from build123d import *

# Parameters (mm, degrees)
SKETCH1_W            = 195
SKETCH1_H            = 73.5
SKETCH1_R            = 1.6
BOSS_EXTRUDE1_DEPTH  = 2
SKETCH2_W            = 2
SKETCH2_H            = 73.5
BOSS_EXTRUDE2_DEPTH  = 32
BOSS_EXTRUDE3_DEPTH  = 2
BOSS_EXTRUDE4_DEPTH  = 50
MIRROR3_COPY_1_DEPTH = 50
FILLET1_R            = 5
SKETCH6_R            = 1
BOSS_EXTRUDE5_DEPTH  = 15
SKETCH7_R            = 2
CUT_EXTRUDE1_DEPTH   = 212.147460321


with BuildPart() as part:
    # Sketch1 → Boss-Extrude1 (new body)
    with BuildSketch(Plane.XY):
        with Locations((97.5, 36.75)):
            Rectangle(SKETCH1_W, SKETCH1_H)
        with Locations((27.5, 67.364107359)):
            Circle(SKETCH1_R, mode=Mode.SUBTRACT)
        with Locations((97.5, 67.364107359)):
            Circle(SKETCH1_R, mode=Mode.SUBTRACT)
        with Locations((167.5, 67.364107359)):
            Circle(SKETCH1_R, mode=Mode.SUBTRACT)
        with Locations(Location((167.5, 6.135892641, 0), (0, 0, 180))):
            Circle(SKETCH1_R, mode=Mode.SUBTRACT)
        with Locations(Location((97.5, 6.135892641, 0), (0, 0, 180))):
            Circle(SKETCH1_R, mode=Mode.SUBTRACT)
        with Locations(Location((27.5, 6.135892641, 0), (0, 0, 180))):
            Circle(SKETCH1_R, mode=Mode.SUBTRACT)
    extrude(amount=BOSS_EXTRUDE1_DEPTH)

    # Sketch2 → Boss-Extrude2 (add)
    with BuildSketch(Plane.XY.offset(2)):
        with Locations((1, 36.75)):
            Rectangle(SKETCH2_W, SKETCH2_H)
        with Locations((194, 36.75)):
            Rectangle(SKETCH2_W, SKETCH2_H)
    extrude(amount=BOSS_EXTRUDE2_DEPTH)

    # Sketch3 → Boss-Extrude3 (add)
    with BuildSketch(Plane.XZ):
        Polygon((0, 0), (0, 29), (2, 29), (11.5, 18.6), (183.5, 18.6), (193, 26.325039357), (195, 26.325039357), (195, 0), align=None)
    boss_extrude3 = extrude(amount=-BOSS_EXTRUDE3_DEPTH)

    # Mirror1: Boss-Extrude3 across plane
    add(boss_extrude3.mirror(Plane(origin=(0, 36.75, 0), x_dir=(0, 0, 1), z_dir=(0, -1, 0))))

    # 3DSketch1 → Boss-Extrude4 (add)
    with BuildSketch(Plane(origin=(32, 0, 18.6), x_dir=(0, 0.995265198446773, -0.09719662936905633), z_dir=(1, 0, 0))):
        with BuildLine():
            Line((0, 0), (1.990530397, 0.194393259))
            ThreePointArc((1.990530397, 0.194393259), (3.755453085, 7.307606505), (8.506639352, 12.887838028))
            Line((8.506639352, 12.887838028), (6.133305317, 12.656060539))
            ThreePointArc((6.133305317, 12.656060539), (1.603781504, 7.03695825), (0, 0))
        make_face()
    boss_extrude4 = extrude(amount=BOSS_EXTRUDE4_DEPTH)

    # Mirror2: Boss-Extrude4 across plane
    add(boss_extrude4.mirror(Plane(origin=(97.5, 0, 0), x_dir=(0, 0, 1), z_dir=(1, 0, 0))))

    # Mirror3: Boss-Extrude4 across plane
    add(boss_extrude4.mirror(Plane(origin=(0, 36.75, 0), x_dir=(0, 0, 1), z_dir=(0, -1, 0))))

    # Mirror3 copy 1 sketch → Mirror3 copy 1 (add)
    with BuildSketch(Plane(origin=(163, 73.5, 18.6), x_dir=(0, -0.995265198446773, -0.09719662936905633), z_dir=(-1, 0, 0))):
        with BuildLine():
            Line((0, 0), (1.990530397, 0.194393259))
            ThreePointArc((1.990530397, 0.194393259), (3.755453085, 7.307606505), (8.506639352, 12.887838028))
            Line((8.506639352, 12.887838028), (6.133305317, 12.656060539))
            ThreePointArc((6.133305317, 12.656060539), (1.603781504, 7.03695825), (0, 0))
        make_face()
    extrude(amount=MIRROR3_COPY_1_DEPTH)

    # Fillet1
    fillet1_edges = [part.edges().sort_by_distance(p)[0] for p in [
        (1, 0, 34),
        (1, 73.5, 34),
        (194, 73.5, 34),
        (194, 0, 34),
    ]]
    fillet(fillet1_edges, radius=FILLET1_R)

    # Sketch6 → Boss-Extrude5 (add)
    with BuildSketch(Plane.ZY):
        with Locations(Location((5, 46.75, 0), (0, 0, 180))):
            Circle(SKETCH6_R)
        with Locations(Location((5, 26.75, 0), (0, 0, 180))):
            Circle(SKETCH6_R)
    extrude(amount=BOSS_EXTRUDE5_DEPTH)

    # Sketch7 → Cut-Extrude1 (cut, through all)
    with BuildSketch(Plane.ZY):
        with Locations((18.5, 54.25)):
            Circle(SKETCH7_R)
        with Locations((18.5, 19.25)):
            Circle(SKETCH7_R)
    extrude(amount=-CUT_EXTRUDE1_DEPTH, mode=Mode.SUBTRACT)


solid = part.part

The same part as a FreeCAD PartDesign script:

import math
import FreeCAD as App
import Part
import Sketcher
from FreeCAD import Vector


def edges_at(feature, points):
    """Names of the edges that pass closest to the given points."""
    edges = feature.Shape.Edges
    near = lambda p: min(range(len(edges)), key=lambda i: edges[i].distToShape(Part.Vertex(*p))[0])
    return sorted({f"Edge{near(p) + 1}" for p in points})

doc = App.newDocument("Part")
params = doc.addObject("Spreadsheet::Sheet", "Params")
for row, (alias, value) in enumerate([
    ("sketch1_diameter", "3.2 mm"),
    ("sketch1_width", "195 mm"),
    ("sketch1_height", "73.5 mm"),
    ("pad1_length", "2 mm"),
    ("sketch2_width", "2 mm"),
    ("sketch2_height", "73.5 mm"),
    ("pad2_length", "32 mm"),
    ("sketch3_width", "195 mm"),
    ("sketch3_width2", "2 mm"),
    ("sketch3_width3", "172 mm"),
    ("sketch3_height", "29 mm"),
    ("pad3_length", "2 mm"),
    ("sketch4_width", "2 mm"),
    ("pad4_length", "50 mm"),
    ("sketch5_width", "2 mm"),
    ("pad5_length", "50 mm"),
    ("fillet_radius", "5 mm"),
    ("sketch6_diameter", "2 mm"),
    ("pad6_length", "15 mm"),
    ("sketch7_diameter", "4 mm"),
], start=1):
    params.set(f"A{row}", alias)
    params.set(f"B{row}", "=" + value)
    params.setAlias(f"B{row}", alias)

body = doc.addObject("PartDesign::Body", "Body")

# Sketch on XY plane
sketch1 = body.newObject("Sketcher::SketchObject", "Sketch")
sketch1.AttachmentSupport = (doc.getObject("XY_Plane"), [""])
sketch1.MapMode = "FlatFace"
sketch1.addGeometry(Part.LineSegment(Vector(0, 73.5, 0), Vector(0, 0, 0)), False)
sketch1.addGeometry(Part.LineSegment(Vector(0, 0, 0), Vector(195, 0, 0)), False)
sketch1.addGeometry(Part.LineSegment(Vector(195, 0, 0), Vector(195, 73.5, 0)), False)
sketch1.addGeometry(Part.LineSegment(Vector(195, 73.5, 0), Vector(0, 73.5, 0)), False)
sketch1.addGeometry(Part.Circle(Vector(27.5, 6.1, 0), Vector(0, 0, 1), 1.6), False)
sketch1.addGeometry(Part.Circle(Vector(97.5, 6.1, 0), Vector(0, 0, 1), 1.6), False)
sketch1.addGeometry(Part.Circle(Vector(167.5, 6.1, 0), Vector(0, 0, 1), 1.6), False)
sketch1.addGeometry(Part.Circle(Vector(27.5, 67.4, 0), Vector(0, 0, 1), 1.6), False)
sketch1.addGeometry(Part.Circle(Vector(97.5, 67.4, 0), Vector(0, 0, 1), 1.6), False)
sketch1.addGeometry(Part.Circle(Vector(167.5, 67.4, 0), Vector(0, 0, 1), 1.6), False)
sketch1.addConstraint(Sketcher.Constraint("Coincident", 0, 2, 1, 1))
sketch1.addConstraint(Sketcher.Constraint("Coincident", 1, 2, 2, 1))
sketch1.addConstraint(Sketcher.Constraint("Coincident", 2, 2, 3, 1))
sketch1.addConstraint(Sketcher.Constraint("Coincident", 3, 2, 0, 1))
sketch1.addConstraint(Sketcher.Constraint("Vertical", 0))
sketch1.addConstraint(Sketcher.Constraint("Horizontal", 1))
sketch1.addConstraint(Sketcher.Constraint("Vertical", 2))
sketch1.addConstraint(Sketcher.Constraint("Horizontal", 3))
sketch1.addConstraint(Sketcher.Constraint("Coincident", 0, 2, -1, 1))
sketch1.addConstraint(Sketcher.Constraint("Equal", 4, 5))
sketch1.addConstraint(Sketcher.Constraint("Equal", 5, 6))
sketch1.addConstraint(Sketcher.Constraint("Equal", 6, 7))
sketch1.addConstraint(Sketcher.Constraint("Equal", 7, 8))
sketch1.addConstraint(Sketcher.Constraint("Equal", 8, 9))
sketch1.addConstraint(Sketcher.Constraint("Horizontal", 4, 3, 5, 3))
sketch1.addConstraint(Sketcher.Constraint("Horizontal", 5, 3, 6, 3))
sketch1.addConstraint(Sketcher.Constraint("Horizontal", 7, 3, 8, 3))
sketch1.addConstraint(Sketcher.Constraint("Horizontal", 8, 3, 9, 3))
sketch1.addConstraint(Sketcher.Constraint("Vertical", 4, 3, 7, 3))
sketch1.addConstraint(Sketcher.Constraint("Vertical", 5, 3, 8, 3))
sketch1.addConstraint(Sketcher.Constraint("Vertical", 6, 3, 9, 3))
sketch1.addConstraint(Sketcher.Constraint("Diameter", 4, 3.2))
sketch1.addConstraint(Sketcher.Constraint("DistanceX", 1, 1, 1, 2, 195.0))
sketch1.addConstraint(Sketcher.Constraint("DistanceY", 0, 2, 0, 1, 73.5))
sketch1.addConstraint(Sketcher.Constraint("DistanceX", 4, 3, 5, 3, 70.0))
sketch1.addConstraint(Sketcher.Constraint("DistanceX", 5, 3, 6, 3, 70.0))
sketch1.addConstraint(Sketcher.Constraint("DistanceX", -1, 1, 4, 3, 27.5))
sketch1.addConstraint(Sketcher.Constraint("DistanceY", -1, 1, 4, 3, 6.135893))
sketch1.addConstraint(Sketcher.Constraint("DistanceY", -1, 1, 7, 3, 67.364107))
sketch1.setExpression("Constraints[21]", "Params.sketch1_diameter")
sketch1.setExpression("Constraints[22]", "Params.sketch1_width")
sketch1.setExpression("Constraints[23]", "Params.sketch1_height")
pad1 = body.newObject("PartDesign::Pad", "Pad")
pad1.Profile = sketch1
pad1.setExpression("Length", "Params.pad1_length")

# Sketch on XY plane
sketch2 = body.newObject("Sketcher::SketchObject", "Sketch001")
sketch2.AttachmentSupport = (doc.getObject("XY_Plane"), [""])
sketch2.MapMode = "FlatFace"
sketch2.AttachmentOffset = App.Placement(Vector(0, 0, 2), App.Rotation())
sketch2.addGeometry(Part.LineSegment(Vector(0, 73.5, 0), Vector(0, 0, 0)), False)
sketch2.addGeometry(Part.LineSegment(Vector(0, 0, 0), Vector(2, 0, 0)), False)
sketch2.addGeometry(Part.LineSegment(Vector(2, 0, 0), Vector(2, 73.5, 0)), False)
sketch2.addGeometry(Part.LineSegment(Vector(2, 73.5, 0), Vector(0, 73.5, 0)), False)
sketch2.addGeometry(Part.LineSegment(Vector(193, 73.5, 0), Vector(193, 0, 0)), False)
sketch2.addGeometry(Part.LineSegment(Vector(193, 0, 0), Vector(195, 0, 0)), False)
sketch2.addGeometry(Part.LineSegment(Vector(195, 0, 0), Vector(195, 73.5, 0)), False)
sketch2.addGeometry(Part.LineSegment(Vector(195, 73.5, 0), Vector(193, 73.5, 0)), False)
sketch2.addConstraint(Sketcher.Constraint("Coincident", 0, 2, 1, 1))
sketch2.addConstraint(Sketcher.Constraint("Coincident", 1, 2, 2, 1))
sketch2.addConstraint(Sketcher.Constraint("Coincident", 2, 2, 3, 1))
sketch2.addConstraint(Sketcher.Constraint("Coincident", 3, 2, 0, 1))
sketch2.addConstraint(Sketcher.Constraint("Coincident", 4, 2, 5, 1))
sketch2.addConstraint(Sketcher.Constraint("Coincident", 5, 2, 6, 1))
sketch2.addConstraint(Sketcher.Constraint("Coincident", 6, 2, 7, 1))
sketch2.addConstraint(Sketcher.Constraint("Coincident", 7, 2, 4, 1))
sketch2.addConstraint(Sketcher.Constraint("Vertical", 0))
sketch2.addConstraint(Sketcher.Constraint("Horizontal", 1))
sketch2.addConstraint(Sketcher.Constraint("Vertical", 2))
sketch2.addConstraint(Sketcher.Constraint("Horizontal", 3))
sketch2.addConstraint(Sketcher.Constraint("Vertical", 4))
sketch2.addConstraint(Sketcher.Constraint("Horizontal", 5))
sketch2.addConstraint(Sketcher.Constraint("Vertical", 6))
sketch2.addConstraint(Sketcher.Constraint("Horizontal", 7))
sketch2.addConstraint(Sketcher.Constraint("Coincident", 0, 2, -1, 1))
sketch2.addConstraint(Sketcher.Constraint("PointOnObject", 4, 2, -1))
sketch2.addConstraint(Sketcher.Constraint("Horizontal", 3, 2, 6, 2))
sketch2.addConstraint(Sketcher.Constraint("Equal", 3, 5))
sketch2.addConstraint(Sketcher.Constraint("DistanceX", 1, 1, 1, 2, 2.0))
sketch2.addConstraint(Sketcher.Constraint("DistanceY", 0, 2, 0, 1, 73.5))
sketch2.addConstraint(Sketcher.Constraint("DistanceX", -1, 1, 4, 2, 193.0))
sketch2.setExpression("Constraints[20]", "Params.sketch2_width")
sketch2.setExpression("Constraints[21]", "Params.sketch2_height")
pad2 = body.newObject("PartDesign::Pad", "Pad001")
pad2.Profile = sketch2
pad2.setExpression("Length", "Params.pad2_length")

# Sketch on XZ plane
sketch3 = body.newObject("Sketcher::SketchObject", "Sketch002")
sketch3.AttachmentSupport = (doc.getObject("XZ_Plane"), [""])
sketch3.MapMode = "FlatFace"
sketch3.addGeometry(Part.LineSegment(Vector(0, 29, 0), Vector(0, 0, 0)), False)
sketch3.addGeometry(Part.LineSegment(Vector(0, 0, 0), Vector(195, 0, 0)), False)
sketch3.addGeometry(Part.LineSegment(Vector(195, 0, 0), Vector(195, 26.3, 0)), False)
sketch3.addGeometry(Part.LineSegment(Vector(195, 26.3, 0), Vector(193, 26.3, 0)), False)
sketch3.addGeometry(Part.LineSegment(Vector(193, 26.3, 0), Vector(183.5, 18.6, 0)), False)
sketch3.addGeometry(Part.LineSegment(Vector(183.5, 18.6, 0), Vector(11.5, 18.6, 0)), False)
sketch3.addGeometry(Part.LineSegment(Vector(11.5, 18.6, 0), Vector(2, 29, 0)), False)
sketch3.addGeometry(Part.LineSegment(Vector(2, 29, 0), Vector(0, 29, 0)), False)
sketch3.addConstraint(Sketcher.Constraint("Coincident", 0, 2, 1, 1))
sketch3.addConstraint(Sketcher.Constraint("Coincident", 1, 2, 2, 1))
sketch3.addConstraint(Sketcher.Constraint("Coincident", 2, 2, 3, 1))
sketch3.addConstraint(Sketcher.Constraint("Coincident", 3, 2, 4, 1))
sketch3.addConstraint(Sketcher.Constraint("Coincident", 4, 2, 5, 1))
sketch3.addConstraint(Sketcher.Constraint("Coincident", 5, 2, 6, 1))
sketch3.addConstraint(Sketcher.Constraint("Coincident", 6, 2, 7, 1))
sketch3.addConstraint(Sketcher.Constraint("Coincident", 7, 2, 0, 1))
sketch3.addConstraint(Sketcher.Constraint("Vertical", 0))
sketch3.addConstraint(Sketcher.Constraint("Horizontal", 1))
sketch3.addConstraint(Sketcher.Constraint("Vertical", 2))
sketch3.addConstraint(Sketcher.Constraint("Horizontal", 3))
sketch3.addConstraint(Sketcher.Constraint("Horizontal", 5))
sketch3.addConstraint(Sketcher.Constraint("Horizontal", 7))
sketch3.addConstraint(Sketcher.Constraint("Coincident", 0, 2, -1, 1))
sketch3.addConstraint(Sketcher.Constraint("Equal", 3, 7))
sketch3.addConstraint(Sketcher.Constraint("DistanceX", 1, 1, 1, 2, 195.0))
sketch3.addConstraint(Sketcher.Constraint("DistanceX", 3, 2, 3, 1, 2.0))
sketch3.addConstraint(Sketcher.Constraint("DistanceX", 5, 2, 5, 1, 172.0))
sketch3.addConstraint(Sketcher.Constraint("DistanceY", 0, 2, 0, 1, 29.0))
sketch3.addConstraint(Sketcher.Constraint("DistanceX", -1, 1, 4, 2, 183.5))
sketch3.addConstraint(Sketcher.Constraint("DistanceY", -1, 1, 4, 2, 18.6))
sketch3.addConstraint(Sketcher.Constraint("DistanceY", 2, 1, 2, 2, 26.325039))
sketch3.setExpression("Constraints[16]", "Params.sketch3_width")
sketch3.setExpression("Constraints[17]", "Params.sketch3_width2")
sketch3.setExpression("Constraints[18]", "Params.sketch3_width3")
sketch3.setExpression("Constraints[19]", "Params.sketch3_height")
pad3 = body.newObject("PartDesign::Pad", "Pad002")
pad3.Profile = sketch3
pad3.setExpression("Length", "Params.pad3_length")
pad3.Reversed = True
doc.recompute()

datumplane = body.newObject("PartDesign::Plane", "DatumPlane")
datumplane.AttachmentSupport = (doc.getObject("XZ_Plane"), [""])
datumplane.MapMode = "FlatFace"
datumplane.AttachmentOffset = App.Placement(Vector(0, 0, -36.75), App.Rotation())
mirrored = body.newObject("PartDesign::Mirrored", "Mirrored")
mirrored.Originals = [pad3]
mirrored.MirrorPlane = (datumplane, [""])
body.Tip = mirrored

# Sketch on YZ plane
sketch4 = body.newObject("Sketcher::SketchObject", "Sketch003")
sketch4.AttachmentSupport = (doc.getObject("YZ_Plane"), [""])
sketch4.MapMode = "FlatFace"
sketch4.AttachmentOffset = App.Placement(Vector(0, 0, 32), App.Rotation())
sketch4.addGeometry(Part.LineSegment(Vector(0, 18.6, 0), Vector(2, 18.6, 0)), False)
sketch4.addGeometry(Part.ArcOfCircle(Part.Circle(Vector(17.9, 16.9, 0), Vector(0, 0, 1), 16), math.radians(121), math.radians(174)), False)
sketch4.addGeometry(Part.LineSegment(Vector(9.7, 30.6, 0), Vector(7.3, 30.6, 0)), False)
sketch4.addGeometry(Part.ArcOfCircle(Part.Circle(Vector(16, 17.1, 0), Vector(0, 0, 1), 16), math.radians(123), math.radians(175)), False)
sketch4.addConstraint(Sketcher.Constraint("Coincident", 0, 2, 1, 2))
sketch4.addConstraint(Sketcher.Constraint("Coincident", 1, 1, 2, 1))
sketch4.addConstraint(Sketcher.Constraint("Coincident", 2, 2, 3, 1))
sketch4.addConstraint(Sketcher.Constraint("Coincident", 3, 2, 0, 1))
sketch4.addConstraint(Sketcher.Constraint("Horizontal", 0))
sketch4.addConstraint(Sketcher.Constraint("Horizontal", 2))
sketch4.addConstraint(Sketcher.Constraint("PointOnObject", 3, 2, -2))
sketch4.addConstraint(Sketcher.Constraint("DistanceX", 0, 1, 0, 2, 2.0))
sketch4.addConstraint(Sketcher.Constraint("DistanceY", 0, 2, 1, 1, 12.0))
sketch4.addConstraint(Sketcher.Constraint("DistanceY", -1, 1, 0, 2, 18.6))
sketch4.addConstraint(Sketcher.Constraint("Radius", 1, 16.001393))
sketch4.addConstraint(Sketcher.Constraint("Radius", 3, 16.022066))
sketch4.addConstraint(Sketcher.Constraint("DistanceX", 2, 2, 2, 1, 2.384625))
sketch4.addConstraint(Sketcher.Constraint("DistanceX", -1, 1, 1, 3, 17.90556))
sketch4.setExpression("Constraints[7]", "Params.sketch4_width")
pad4 = body.newObject("PartDesign::Pad", "Pad003")
pad4.Profile = sketch4
pad4.setExpression("Length", "Params.pad4_length")
doc.recompute()

datumplane2 = body.newObject("PartDesign::Plane", "DatumPlane001")
datumplane2.AttachmentSupport = (doc.getObject("YZ_Plane"), [""])
datumplane2.MapMode = "FlatFace"
datumplane2.AttachmentOffset = App.Placement(Vector(0, 0, 97.5), App.Rotation())
mirrored2 = body.newObject("PartDesign::Mirrored", "Mirrored001")
mirrored2.Originals = [pad4]
mirrored2.MirrorPlane = (datumplane2, [""])
body.Tip = mirrored2
doc.recompute()

datumplane3 = body.newObject("PartDesign::Plane", "DatumPlane002")
datumplane3.AttachmentSupport = (doc.getObject("XZ_Plane"), [""])
datumplane3.MapMode = "FlatFace"
datumplane3.AttachmentOffset = App.Placement(Vector(0, 0, -36.75), App.Rotation())
mirrored3 = body.newObject("PartDesign::Mirrored", "Mirrored002")
mirrored3.Originals = [pad4]
mirrored3.MirrorPlane = (datumplane3, [""])
body.Tip = mirrored3

# Sketch on YZ plane
sketch5 = body.newObject("Sketcher::SketchObject", "Sketch004")
sketch5.AttachmentSupport = (doc.getObject("YZ_Plane"), [""])
sketch5.MapMode = "FlatFace"
sketch5.AttachmentOffset = App.Placement(Vector(0, 0, 163), App.Rotation())
sketch5.addGeometry(Part.LineSegment(Vector(73.5, 18.6, 0), Vector(71.5, 18.6, 0)), False)
sketch5.addGeometry(Part.ArcOfCircle(Part.Circle(Vector(55.6, 16.9, 0), Vector(0, 0, 1), 16), math.radians(6), math.radians(59)), False)
sketch5.addGeometry(Part.LineSegment(Vector(63.8, 30.6, 0), Vector(66.2, 30.6, 0)), False)
sketch5.addGeometry(Part.ArcOfCircle(Part.Circle(Vector(57.5, 17.1, 0), Vector(0, 0, 1), 16), math.radians(5), math.radians(57)), False)
sketch5.addConstraint(Sketcher.Constraint("Coincident", 0, 2, 1, 1))
sketch5.addConstraint(Sketcher.Constraint("Coincident", 1, 2, 2, 1))
sketch5.addConstraint(Sketcher.Constraint("Coincident", 2, 2, 3, 2))
sketch5.addConstraint(Sketcher.Constraint("Coincident", 3, 1, 0, 1))
sketch5.addConstraint(Sketcher.Constraint("Horizontal", 0))
sketch5.addConstraint(Sketcher.Constraint("Horizontal", 2))
sketch5.addConstraint(Sketcher.Constraint("DistanceX", 0, 2, 0, 1, 2.0))
sketch5.addConstraint(Sketcher.Constraint("DistanceY", 0, 2, 1, 2, 12.0))
sketch5.addConstraint(Sketcher.Constraint("DistanceX", -1, 1, 0, 2, 71.5))
sketch5.addConstraint(Sketcher.Constraint("DistanceY", -1, 1, 0, 2, 18.6))
sketch5.addConstraint(Sketcher.Constraint("Radius", 1, 16.001393))
sketch5.addConstraint(Sketcher.Constraint("Radius", 3, 16.022066))
sketch5.addConstraint(Sketcher.Constraint("DistanceX", 2, 1, 2, 2, 2.384625))
sketch5.addConstraint(Sketcher.Constraint("DistanceX", -1, 1, 1, 3, 55.59444))
sketch5.setExpression("Constraints[6]", "Params.sketch5_width")
pad5 = body.newObject("PartDesign::Pad", "Pad004")
pad5.Profile = sketch5
pad5.setExpression("Length", "Params.pad5_length")
pad5.Reversed = True
doc.recompute()

fillet = body.newObject("PartDesign::Fillet", "Fillet")
fillet.Base = (pad5, edges_at(pad5, [
    (1, 0, 34),
    (1, 73.5, 34),
    (194, 73.5, 34),
    (194, 0, 34),
]))
fillet.setExpression("Radius", "Params.fillet_radius")

# Sketch on YZ plane
sketch6 = body.newObject("Sketcher::SketchObject", "Sketch005")
sketch6.AttachmentSupport = (doc.getObject("YZ_Plane"), [""])
sketch6.MapMode = "FlatFace"
sketch6.addGeometry(Part.Circle(Vector(46.8, 5, 0), Vector(0, 0, 1), 1), False)
sketch6.addGeometry(Part.Circle(Vector(26.8, 5, 0), Vector(0, 0, 1), 1), False)
sketch6.addConstraint(Sketcher.Constraint("Equal", 0, 1))
sketch6.addConstraint(Sketcher.Constraint("Horizontal", 0, 3, 1, 3))
sketch6.addConstraint(Sketcher.Constraint("Diameter", 0, 2.0))
sketch6.addConstraint(Sketcher.Constraint("DistanceY", -1, 1, 0, 3, 5.0))
sketch6.addConstraint(Sketcher.Constraint("DistanceX", 1, 3, 0, 3, 20.0))
sketch6.addConstraint(Sketcher.Constraint("DistanceX", -1, 1, 0, 3, 46.75))
sketch6.setExpression("Constraints[2]", "Params.sketch6_diameter")
pad6 = body.newObject("PartDesign::Pad", "Pad005")
pad6.Profile = sketch6
pad6.setExpression("Length", "Params.pad6_length")
pad6.Reversed = True

# Sketch on YZ plane
sketch7 = body.newObject("Sketcher::SketchObject", "Sketch006")
sketch7.AttachmentSupport = (doc.getObject("YZ_Plane"), [""])
sketch7.MapMode = "FlatFace"
sketch7.addGeometry(Part.Circle(Vector(54.2, 18.5, 0), Vector(0, 0, 1), 2), False)
sketch7.addGeometry(Part.Circle(Vector(19.2, 18.5, 0), Vector(0, 0, 1), 2), False)
sketch7.addConstraint(Sketcher.Constraint("Equal", 0, 1))
sketch7.addConstraint(Sketcher.Constraint("Horizontal", 0, 3, 1, 3))
sketch7.addConstraint(Sketcher.Constraint("Diameter", 0, 4.0))
sketch7.addConstraint(Sketcher.Constraint("DistanceX", 1, 3, 0, 3, 35.0))
sketch7.addConstraint(Sketcher.Constraint("DistanceY", -1, 1, 0, 3, 18.5))
sketch7.addConstraint(Sketcher.Constraint("DistanceX", -1, 1, 0, 3, 54.25))
sketch7.setExpression("Constraints[2]", "Params.sketch7_diameter")
pocket1 = body.newObject("PartDesign::Pocket", "Pocket")
pocket1.Profile = sketch7
pocket1.Type = "ThroughAll"
pocket1.Reversed = True

doc.recompute()
